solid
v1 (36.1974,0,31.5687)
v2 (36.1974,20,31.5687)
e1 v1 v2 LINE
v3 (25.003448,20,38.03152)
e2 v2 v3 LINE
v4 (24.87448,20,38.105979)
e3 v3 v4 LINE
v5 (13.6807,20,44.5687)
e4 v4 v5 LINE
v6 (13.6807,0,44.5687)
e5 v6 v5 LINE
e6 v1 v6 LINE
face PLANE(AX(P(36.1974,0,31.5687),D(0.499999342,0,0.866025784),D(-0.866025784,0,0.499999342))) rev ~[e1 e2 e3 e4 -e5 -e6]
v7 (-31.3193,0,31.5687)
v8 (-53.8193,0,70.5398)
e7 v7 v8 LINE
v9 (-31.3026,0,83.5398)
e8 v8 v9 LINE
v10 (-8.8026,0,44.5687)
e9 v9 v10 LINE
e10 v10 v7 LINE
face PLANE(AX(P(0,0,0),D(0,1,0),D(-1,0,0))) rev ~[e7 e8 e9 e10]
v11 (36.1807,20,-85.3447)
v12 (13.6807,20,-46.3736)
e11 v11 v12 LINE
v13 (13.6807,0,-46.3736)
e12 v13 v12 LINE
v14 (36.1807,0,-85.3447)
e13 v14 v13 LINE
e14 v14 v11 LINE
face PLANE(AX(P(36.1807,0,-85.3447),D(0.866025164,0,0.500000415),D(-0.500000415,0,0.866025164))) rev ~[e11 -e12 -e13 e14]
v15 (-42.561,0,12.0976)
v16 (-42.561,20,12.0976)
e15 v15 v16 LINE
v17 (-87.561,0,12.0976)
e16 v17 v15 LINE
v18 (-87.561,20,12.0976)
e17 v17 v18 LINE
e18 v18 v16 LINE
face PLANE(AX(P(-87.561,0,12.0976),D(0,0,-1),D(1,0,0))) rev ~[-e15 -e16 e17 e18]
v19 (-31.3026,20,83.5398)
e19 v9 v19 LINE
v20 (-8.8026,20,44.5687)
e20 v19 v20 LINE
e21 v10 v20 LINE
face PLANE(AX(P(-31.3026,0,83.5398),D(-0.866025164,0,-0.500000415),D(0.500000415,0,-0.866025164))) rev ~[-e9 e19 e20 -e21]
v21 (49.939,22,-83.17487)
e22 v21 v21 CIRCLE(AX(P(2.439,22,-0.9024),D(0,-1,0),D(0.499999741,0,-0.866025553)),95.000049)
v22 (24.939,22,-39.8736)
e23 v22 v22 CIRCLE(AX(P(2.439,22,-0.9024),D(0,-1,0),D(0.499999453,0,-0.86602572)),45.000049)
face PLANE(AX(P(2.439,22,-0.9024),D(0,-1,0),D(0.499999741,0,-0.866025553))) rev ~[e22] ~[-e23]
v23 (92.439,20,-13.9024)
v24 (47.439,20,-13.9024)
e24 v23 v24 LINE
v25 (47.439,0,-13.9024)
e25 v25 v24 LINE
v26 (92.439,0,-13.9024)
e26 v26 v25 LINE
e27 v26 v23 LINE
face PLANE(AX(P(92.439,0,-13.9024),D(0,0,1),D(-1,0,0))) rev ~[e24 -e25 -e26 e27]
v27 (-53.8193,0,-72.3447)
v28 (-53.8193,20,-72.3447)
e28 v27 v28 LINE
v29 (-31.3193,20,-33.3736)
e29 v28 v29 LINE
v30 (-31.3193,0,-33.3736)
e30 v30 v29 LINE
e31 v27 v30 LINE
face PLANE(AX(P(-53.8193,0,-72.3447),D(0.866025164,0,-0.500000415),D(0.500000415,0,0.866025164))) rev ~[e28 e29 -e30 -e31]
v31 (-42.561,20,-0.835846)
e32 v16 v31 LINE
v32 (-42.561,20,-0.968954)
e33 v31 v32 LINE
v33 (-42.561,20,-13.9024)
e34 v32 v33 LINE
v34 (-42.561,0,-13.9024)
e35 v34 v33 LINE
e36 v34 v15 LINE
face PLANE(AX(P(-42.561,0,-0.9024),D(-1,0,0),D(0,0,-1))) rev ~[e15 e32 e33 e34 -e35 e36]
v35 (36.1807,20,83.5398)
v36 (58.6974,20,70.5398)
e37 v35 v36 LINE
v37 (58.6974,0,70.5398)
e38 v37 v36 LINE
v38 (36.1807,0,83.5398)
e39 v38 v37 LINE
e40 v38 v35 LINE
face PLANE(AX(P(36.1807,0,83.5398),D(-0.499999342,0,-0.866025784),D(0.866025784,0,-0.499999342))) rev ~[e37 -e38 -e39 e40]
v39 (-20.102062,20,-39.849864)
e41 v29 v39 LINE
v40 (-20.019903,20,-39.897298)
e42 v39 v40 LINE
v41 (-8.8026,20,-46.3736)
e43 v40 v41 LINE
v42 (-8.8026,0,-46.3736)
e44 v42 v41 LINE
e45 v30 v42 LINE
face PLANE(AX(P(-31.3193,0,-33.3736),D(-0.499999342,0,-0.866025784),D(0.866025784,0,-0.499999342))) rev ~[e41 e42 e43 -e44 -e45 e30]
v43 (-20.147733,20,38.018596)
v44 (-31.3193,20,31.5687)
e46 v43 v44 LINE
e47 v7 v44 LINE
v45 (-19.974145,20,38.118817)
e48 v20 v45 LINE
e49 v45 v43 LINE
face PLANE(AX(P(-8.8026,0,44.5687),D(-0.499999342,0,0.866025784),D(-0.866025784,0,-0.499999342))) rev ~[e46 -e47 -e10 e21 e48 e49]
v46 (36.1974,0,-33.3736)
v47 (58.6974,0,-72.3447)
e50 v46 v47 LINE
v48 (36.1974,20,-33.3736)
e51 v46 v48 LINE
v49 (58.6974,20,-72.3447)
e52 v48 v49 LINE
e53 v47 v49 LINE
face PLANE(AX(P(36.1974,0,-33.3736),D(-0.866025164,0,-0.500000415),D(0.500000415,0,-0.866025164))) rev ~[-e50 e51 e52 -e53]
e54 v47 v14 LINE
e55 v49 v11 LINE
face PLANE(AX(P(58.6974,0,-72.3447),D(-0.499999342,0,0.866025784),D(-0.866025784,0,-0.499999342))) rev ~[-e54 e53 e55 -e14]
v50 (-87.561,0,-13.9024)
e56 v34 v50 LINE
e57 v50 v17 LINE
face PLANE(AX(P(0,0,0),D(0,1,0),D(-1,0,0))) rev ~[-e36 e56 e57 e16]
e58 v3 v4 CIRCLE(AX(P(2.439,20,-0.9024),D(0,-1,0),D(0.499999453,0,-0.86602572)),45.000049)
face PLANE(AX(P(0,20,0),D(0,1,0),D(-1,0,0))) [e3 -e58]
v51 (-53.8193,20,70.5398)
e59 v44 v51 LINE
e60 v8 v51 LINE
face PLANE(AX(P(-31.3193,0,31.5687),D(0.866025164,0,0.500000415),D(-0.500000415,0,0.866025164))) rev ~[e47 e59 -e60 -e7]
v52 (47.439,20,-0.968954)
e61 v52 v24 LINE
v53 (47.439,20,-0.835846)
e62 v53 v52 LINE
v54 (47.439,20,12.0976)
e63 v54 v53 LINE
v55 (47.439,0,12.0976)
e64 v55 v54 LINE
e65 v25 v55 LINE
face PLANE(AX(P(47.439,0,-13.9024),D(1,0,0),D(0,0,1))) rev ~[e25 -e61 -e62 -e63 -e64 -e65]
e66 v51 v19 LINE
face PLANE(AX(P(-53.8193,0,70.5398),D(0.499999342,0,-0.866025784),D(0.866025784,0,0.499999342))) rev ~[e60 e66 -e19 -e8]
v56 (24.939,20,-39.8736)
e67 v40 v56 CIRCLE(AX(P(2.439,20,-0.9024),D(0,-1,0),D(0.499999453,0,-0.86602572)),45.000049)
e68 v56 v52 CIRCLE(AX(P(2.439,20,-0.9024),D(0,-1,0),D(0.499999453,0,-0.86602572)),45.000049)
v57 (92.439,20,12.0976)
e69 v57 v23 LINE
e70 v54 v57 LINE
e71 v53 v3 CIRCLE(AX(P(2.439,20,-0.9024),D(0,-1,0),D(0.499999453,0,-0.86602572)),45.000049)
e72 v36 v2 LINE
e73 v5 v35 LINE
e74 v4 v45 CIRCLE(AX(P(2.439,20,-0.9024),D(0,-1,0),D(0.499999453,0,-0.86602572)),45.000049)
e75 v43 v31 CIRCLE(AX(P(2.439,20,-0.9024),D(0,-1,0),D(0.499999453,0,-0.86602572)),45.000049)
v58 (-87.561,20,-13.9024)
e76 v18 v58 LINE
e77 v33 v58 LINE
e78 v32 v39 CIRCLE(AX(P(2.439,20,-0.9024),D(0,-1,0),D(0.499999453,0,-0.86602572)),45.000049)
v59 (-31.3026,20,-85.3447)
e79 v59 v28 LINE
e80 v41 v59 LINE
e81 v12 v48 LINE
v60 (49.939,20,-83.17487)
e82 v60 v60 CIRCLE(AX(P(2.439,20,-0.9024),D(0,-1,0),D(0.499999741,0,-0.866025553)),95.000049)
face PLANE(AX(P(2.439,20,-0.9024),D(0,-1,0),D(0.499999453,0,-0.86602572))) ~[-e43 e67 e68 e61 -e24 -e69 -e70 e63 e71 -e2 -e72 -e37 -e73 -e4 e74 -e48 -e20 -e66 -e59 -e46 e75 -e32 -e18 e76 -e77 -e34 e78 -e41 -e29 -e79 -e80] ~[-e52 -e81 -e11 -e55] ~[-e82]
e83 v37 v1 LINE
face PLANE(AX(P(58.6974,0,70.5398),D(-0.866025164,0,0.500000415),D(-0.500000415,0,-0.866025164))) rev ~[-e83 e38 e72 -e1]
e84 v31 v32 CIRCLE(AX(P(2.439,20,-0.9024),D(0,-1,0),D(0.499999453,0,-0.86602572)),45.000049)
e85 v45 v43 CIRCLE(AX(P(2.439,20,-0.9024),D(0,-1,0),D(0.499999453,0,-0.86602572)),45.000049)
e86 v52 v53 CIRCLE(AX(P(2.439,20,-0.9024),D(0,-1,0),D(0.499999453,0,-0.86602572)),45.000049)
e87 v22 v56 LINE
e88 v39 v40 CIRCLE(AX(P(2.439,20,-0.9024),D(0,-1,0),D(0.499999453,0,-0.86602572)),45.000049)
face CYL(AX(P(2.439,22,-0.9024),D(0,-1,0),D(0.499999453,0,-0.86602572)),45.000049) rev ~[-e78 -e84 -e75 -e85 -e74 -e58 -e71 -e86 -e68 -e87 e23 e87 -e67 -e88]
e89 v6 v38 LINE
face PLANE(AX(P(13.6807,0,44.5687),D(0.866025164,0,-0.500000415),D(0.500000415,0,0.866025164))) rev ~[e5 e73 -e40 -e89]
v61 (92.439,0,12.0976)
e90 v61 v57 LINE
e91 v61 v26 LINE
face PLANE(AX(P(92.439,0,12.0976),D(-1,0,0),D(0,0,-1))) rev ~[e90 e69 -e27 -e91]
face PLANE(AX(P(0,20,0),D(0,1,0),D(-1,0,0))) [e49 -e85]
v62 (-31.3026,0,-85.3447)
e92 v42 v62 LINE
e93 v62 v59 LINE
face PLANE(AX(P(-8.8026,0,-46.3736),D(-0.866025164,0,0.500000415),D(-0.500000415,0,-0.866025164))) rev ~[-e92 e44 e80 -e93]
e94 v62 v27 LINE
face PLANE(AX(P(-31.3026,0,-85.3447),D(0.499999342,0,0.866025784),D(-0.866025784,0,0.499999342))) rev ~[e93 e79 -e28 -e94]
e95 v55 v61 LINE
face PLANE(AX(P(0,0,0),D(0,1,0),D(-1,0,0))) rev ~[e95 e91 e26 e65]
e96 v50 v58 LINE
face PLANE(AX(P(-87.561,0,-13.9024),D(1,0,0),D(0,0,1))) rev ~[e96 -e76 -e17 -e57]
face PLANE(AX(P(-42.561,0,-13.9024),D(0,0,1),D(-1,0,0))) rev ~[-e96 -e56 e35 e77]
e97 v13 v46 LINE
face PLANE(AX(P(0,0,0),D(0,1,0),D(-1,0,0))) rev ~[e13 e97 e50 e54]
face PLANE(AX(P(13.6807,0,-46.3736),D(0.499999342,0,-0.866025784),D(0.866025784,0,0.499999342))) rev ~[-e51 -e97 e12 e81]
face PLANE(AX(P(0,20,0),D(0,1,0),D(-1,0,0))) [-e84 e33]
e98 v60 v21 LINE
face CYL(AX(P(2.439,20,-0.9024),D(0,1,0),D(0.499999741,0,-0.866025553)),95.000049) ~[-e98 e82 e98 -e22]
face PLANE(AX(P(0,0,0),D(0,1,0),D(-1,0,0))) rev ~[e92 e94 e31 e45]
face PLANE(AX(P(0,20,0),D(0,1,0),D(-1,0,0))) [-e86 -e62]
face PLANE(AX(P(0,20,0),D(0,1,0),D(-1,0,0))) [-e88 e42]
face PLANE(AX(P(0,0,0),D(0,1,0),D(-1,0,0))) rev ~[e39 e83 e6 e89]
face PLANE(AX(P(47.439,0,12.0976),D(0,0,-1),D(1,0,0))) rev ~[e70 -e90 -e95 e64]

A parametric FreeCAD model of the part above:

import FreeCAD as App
import Part
import Sketcher

V = App.Vector
Q = App.Units.Quantity

doc = App.newDocument("Part")
body = doc.addObject("PartDesign::Body", "Body")
body.AllowCompound = True

sketch1 = doc.addObject("Sketcher::SketchObject", "Sketch")
body.addObject(sketch1)
sketch1.AttachmentSupport = (doc.XZ_Plane, [""])
sketch1.MapMode = "FlatFace"
sketch1.addGeometry([
    Part.LineSegment(V(-88, -14, 0), V(-88, 12, 0)),
    Part.LineSegment(V(-88, 12, 0), V(-43, 12, 0)),
    Part.LineSegment(V(-43, 12, 0), V(-43, -14, 0)),
    Part.LineSegment(V(-43, -14, 0), V(-88, -14, 0)),
    Part.LineSegment(V(47, -14, 0), V(47, 12, 0)),
    Part.LineSegment(V(47, 12, 0), V(92, 12, 0)),
    Part.LineSegment(V(92, 12, 0), V(92, -14, 0)),
    Part.LineSegment(V(92, -14, 0), V(47, -14, 0)),
    Part.LineSegment(V(-54, 71, 0), V(-31, 84, 0)),
    Part.LineSegment(V(-31, 84, 0), V(-9, 45, 0)),
    Part.LineSegment(V(-9, 45, 0), V(-31, 32, 0)),
    Part.LineSegment(V(-31, 32, 0), V(-54, 71, 0)),
    Part.LineSegment(V(36, 84, 0), V(59, 71, 0)),
    Part.LineSegment(V(59, 71, 0), V(36, 32, 0)),
    Part.LineSegment(V(36, 32, 0), V(14, 45, 0)),
    Part.LineSegment(V(14, 45, 0), V(36, 84, 0)),
    Part.LineSegment(V(59, -72, 0), V(36, -85, 0)),
    Part.LineSegment(V(36, -85, 0), V(14, -46, 0)),
    Part.LineSegment(V(14, -46, 0), V(36, -33, 0)),
    Part.LineSegment(V(36, -33, 0), V(59, -72, 0)),
    Part.LineSegment(V(-31, -85, 0), V(-54, -72, 0)),
    Part.LineSegment(V(-54, -72, 0), V(-31, -33, 0)),
    Part.LineSegment(V(-31, -33, 0), V(-9, -46, 0)),
    Part.LineSegment(V(-9, -46, 0), V(-31, -85, 0)),
], False)
sketch1.addConstraint([
    Sketcher.Constraint("Coincident", 0, 2, 1, 1),
    Sketcher.Constraint("Coincident", 1, 2, 2, 1),
    Sketcher.Constraint("Coincident", 2, 2, 3, 1),
    Sketcher.Constraint("Coincident", 3, 2, 0, 1),
    Sketcher.Constraint("Coincident", 4, 2, 5, 1),
    Sketcher.Constraint("Coincident", 5, 2, 6, 1),
    Sketcher.Constraint("Coincident", 6, 2, 7, 1),
    Sketcher.Constraint("Coincident", 7, 2, 4, 1),
    Sketcher.Constraint("Coincident", 8, 2, 9, 1),
    Sketcher.Constraint("Coincident", 9, 2, 10, 1),
    Sketcher.Constraint("Coincident", 10, 2, 11, 1),
    Sketcher.Constraint("Coincident", 11, 2, 8, 1),
    Sketcher.Constraint("Coincident", 12, 2, 13, 1),
    Sketcher.Constraint("Coincident", 13, 2, 14, 1),
    Sketcher.Constraint("Coincident", 14, 2, 15, 1),
    Sketcher.Constraint("Coincident", 15, 2, 12, 1),
    Sketcher.Constraint("Coincident", 16, 2, 17, 1),
    Sketcher.Constraint("Coincident", 17, 2, 18, 1),
    Sketcher.Constraint("Coincident", 18, 2, 19, 1),
    Sketcher.Constraint("Coincident", 19, 2, 16, 1),
    Sketcher.Constraint("Coincident", 20, 2, 21, 1),
    Sketcher.Constraint("Coincident", 21, 2, 22, 1),
    Sketcher.Constraint("Coincident", 22, 2, 23, 1),
    Sketcher.Constraint("Coincident", 23, 2, 20, 1),
    Sketcher.Constraint("Vertical", 0),
    Sketcher.Constraint("Horizontal", 1),
    Sketcher.Constraint("Vertical", 2),
    Sketcher.Constraint("Horizontal", 3),
    Sketcher.Constraint("Vertical", 4),
    Sketcher.Constraint("Horizontal", 5),
    Sketcher.Constraint("Vertical", 6),
    Sketcher.Constraint("Horizontal", 7),
    Sketcher.Constraint("Perpendicular", 8, 9),
    Sketcher.Constraint("Perpendicular", 9, 10),
    Sketcher.Constraint("Perpendicular", 10, 11),
    Sketcher.Constraint("Perpendicular", 12, 13),
    Sketcher.Constraint("Perpendicular", 13, 14),
    Sketcher.Constraint("Perpendicular", 14, 15),
    Sketcher.Constraint("Perpendicular", 11, 16),
    Sketcher.Constraint("Perpendicular", 16, 17),
    Sketcher.Constraint("Perpendicular", 17, 18),
    Sketcher.Constraint("Perpendicular", 18, 19),
    Sketcher.Constraint("Perpendicular", 15, 20),
    Sketcher.Constraint("Perpendicular", 20, 21),
    Sketcher.Constraint("Perpendicular", 21, 22),
    Sketcher.Constraint("Perpendicular", 22, 23),
    Sketcher.Constraint("Horizontal", 1, 2, 4, 2),
    Sketcher.Constraint("Horizontal", 3, 2, 6, 2),
    Sketcher.Constraint("Horizontal", 11, 2, 12, 2),
    Sketcher.Constraint("Horizontal", 10, 2, 13, 2),
    Sketcher.Constraint("Horizontal", 9, 2, 14, 2),
    Sketcher.Constraint("Horizontal", 19, 2, 20, 2),
    Sketcher.Constraint("Horizontal", 18, 2, 21, 2),
    Sketcher.Constraint("Horizontal", 17, 2, 22, 2),
    Sketcher.Constraint("Vertical", 15, 2, 16, 2),
    Sketcher.Constraint("Vertical", 14, 2, 17, 2),
    Sketcher.Constraint("Vertical", 13, 2, 18, 2),
    Sketcher.Constraint("Vertical", 11, 2, 20, 2),
    Sketcher.Constraint("Vertical", 10, 2, 21, 2),
    Sketcher.Constraint("Equal", 3, 5),
    Sketcher.Constraint("DistanceY", 0, 1, 0, 2, Q("26 mm")),
    Sketcher.Constraint("Distance", 8, Q("26 mm")),
    Sketcher.Constraint("DistanceX", 1, 2, 4, 2, Q("90 mm")),
    Sketcher.Constraint("DistanceX", 0, 2, 5, 2, Q("180 mm")),
    Sketcher.Constraint("DistanceX", 20, 2, 16, 2, Q("90 mm")),
    Sketcher.Constraint("Angle", 8, Q("30 deg")),
    Sketcher.Constraint("Distance", 9, Q("45 mm")),
    Sketcher.Constraint("DistanceX", 0, 2, -1, 1, Q("87.561 mm")),
    Sketcher.Constraint("DistanceY", 1, 2, 9, 2, Q("32.471 mm")),
    Sketcher.Constraint("DistanceY", -1, 1, 0, 2, Q("12.0976 mm")),
    Sketcher.Constraint("DistanceX", 8, 2, -1, 1, Q("31.3026 mm")),
    Sketcher.Constraint("DistanceY", 16, 2, -1, 1, Q("85.3447 mm")),
])
pad1 = doc.addObject("PartDesign::Pad", "Pad")
body.addObject(pad1)
pad1.Profile = sketch1
pad1.Length = 20
pad1.Reversed = True

sketch2 = doc.addObject("Sketcher::SketchObject", "Sketch001")
body.addObject(sketch2)
sketch2.Placement = App.Placement(V(24.939, 0, -39.8736), App.Rotation(V(-0.5, 0, 0.866025404), V(0, 1, 0), V(-0.866025404, 0, -0.5), "ZXY"))
sketch2.addGeometry([
    Part.LineSegment(V(-50, 20, 0), V(0, 20, 0)),
    Part.LineSegment(V(0, 20, 0), V(0, 22, 0)),
    Part.LineSegment(V(0, 22, 0), V(-50, 22, 0)),
    Part.LineSegment(V(-50, 22, 0), V(-50, 20, 0)),
], False)
sketch2.addGeometry(Part.LineSegment(V(45, 22, 0), V(45, 20, 0)), True)
sketch2.addConstraint([
    Sketcher.Constraint("Coincident", 0, 2, 1, 1),
    Sketcher.Constraint("Coincident", 1, 2, 2, 1),
    Sketcher.Constraint("Coincident", 2, 2, 3, 1),
    Sketcher.Constraint("Coincident", 3, 2, 0, 1),
    Sketcher.Constraint("Horizontal", 0),
    Sketcher.Constraint("Vertical", 1),
    Sketcher.Constraint("Horizontal", 2),
    Sketcher.Constraint("Vertical", 3),
    Sketcher.Constraint("Vertical", 4),
    Sketcher.Constraint("PointOnObject", 0, 2, -2),
    Sketcher.Constraint("Horizontal", 2, 2, 4, 1),
    Sketcher.Constraint("Horizontal", 3, 2, 4, 2),
    Sketcher.Constraint("DistanceY", 1, 1, 1, 2, Q("2 mm")),
    Sketcher.Constraint("DistanceX", 0, 1, 0, 2, Q("50 mm")),
    Sketcher.Constraint("DistanceY", -1, 1, 0, 2, Q("20 mm")),
    Sketcher.Constraint("DistanceX", -1, 1, 4, 1, Q("45 mm")),
])
revolution = doc.addObject("PartDesign::Revolution", "Revolution")
body.addObject(revolution)
revolution.Profile = sketch2
revolution.ReferenceAxis = (sketch2, ["Axis0"])
revolution.Angle = 360

doc.recompute()
